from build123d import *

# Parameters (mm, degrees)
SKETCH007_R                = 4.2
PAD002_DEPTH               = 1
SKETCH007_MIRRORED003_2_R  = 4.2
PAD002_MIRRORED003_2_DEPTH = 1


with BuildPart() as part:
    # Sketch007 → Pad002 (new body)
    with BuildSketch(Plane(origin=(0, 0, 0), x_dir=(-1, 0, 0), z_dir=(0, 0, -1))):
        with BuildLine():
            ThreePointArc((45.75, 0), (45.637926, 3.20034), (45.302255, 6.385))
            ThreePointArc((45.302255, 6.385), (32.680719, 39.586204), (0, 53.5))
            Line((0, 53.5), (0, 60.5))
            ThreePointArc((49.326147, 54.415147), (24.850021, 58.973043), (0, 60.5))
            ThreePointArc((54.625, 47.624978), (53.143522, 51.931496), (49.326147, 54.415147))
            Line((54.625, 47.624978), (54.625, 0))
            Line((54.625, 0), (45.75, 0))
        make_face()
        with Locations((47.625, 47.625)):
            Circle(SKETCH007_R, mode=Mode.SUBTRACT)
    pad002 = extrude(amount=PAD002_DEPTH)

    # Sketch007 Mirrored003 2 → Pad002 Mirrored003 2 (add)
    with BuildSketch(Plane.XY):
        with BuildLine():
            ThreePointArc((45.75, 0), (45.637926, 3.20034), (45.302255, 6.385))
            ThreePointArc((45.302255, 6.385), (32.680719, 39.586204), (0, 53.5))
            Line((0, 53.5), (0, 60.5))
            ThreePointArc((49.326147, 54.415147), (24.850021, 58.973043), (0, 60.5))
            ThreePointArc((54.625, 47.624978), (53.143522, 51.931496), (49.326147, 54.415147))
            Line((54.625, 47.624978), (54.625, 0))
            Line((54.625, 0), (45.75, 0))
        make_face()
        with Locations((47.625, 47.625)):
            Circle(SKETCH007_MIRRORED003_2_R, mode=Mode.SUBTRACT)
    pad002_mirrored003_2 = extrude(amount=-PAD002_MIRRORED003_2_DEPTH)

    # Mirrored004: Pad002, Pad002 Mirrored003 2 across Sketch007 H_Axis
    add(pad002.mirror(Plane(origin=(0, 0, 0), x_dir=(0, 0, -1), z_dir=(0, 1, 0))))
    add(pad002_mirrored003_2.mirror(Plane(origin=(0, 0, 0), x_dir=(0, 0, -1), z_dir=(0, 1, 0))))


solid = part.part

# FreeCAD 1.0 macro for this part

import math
import FreeCAD as App
import Part
import Sketcher
from FreeCAD import Vector

doc = App.newDocument("Part")
body = doc.addObject("PartDesign::Body", "Body")

sketch1 = body.newObject("Sketcher::SketchObject", "Sketch")
sketch1.AttachmentSupport = (doc.getObject("XY_Plane"), [""])
sketch1.MapMode = "FlatFace"
sketch1.addGeometry([
    Part.ArcOfCircle(Part.Circle(Vector(0, 0, 0), Vector(0, 0, 1), 45.8), math.radians(171.98), math.radians(180)),
    Part.LineSegment(Vector(-45.8, 0, 0), Vector(-54.6, 0, 0)),
    Part.LineSegment(Vector(-54.6, 0, 0), Vector(-54.6, 47.6, 0)),
    Part.ArcOfCircle(Part.Circle(Vector(-47.6, 47.6, 0), Vector(0, 0, 1), 7), math.radians(104), math.radians(180)),
    Part.ArcOfCircle(Part.Circle(Vector(0, -142.5, 0), Vector(0, 0, 1), 203), math.radians(90), math.radians(104.06)),
    Part.LineSegment(Vector(0, 60.5, 0), Vector(0, 53.5, 0)),
    Part.ArcOfCircle(Part.Circle(Vector(0, 8.2, 0), Vector(0, 0, 1), 45.3), math.radians(90), math.radians(182)),
    Part.Circle(Vector(-47.6, 47.6, 0), Vector(0, 0, 1), 4.2),
], False)
sketch1.addConstraint([
    Sketcher.Constraint("Coincident", 0, 2, 1, 1),
    Sketcher.Constraint("Coincident", 1, 2, 2, 1),
    Sketcher.Constraint("Coincident", 2, 2, 3, 2),
    Sketcher.Constraint("Tangent", 3, 1, 4, 2),
    Sketcher.Constraint("Coincident", 4, 1, 5, 1),
    Sketcher.Constraint("Coincident", 5, 2, 6, 1),
    Sketcher.Constraint("Coincident", 6, 2, 0, 1),
    Sketcher.Constraint("Horizontal", 1),
    Sketcher.Constraint("Vertical", 2),
    Sketcher.Constraint("Vertical", 5),
    Sketcher.Constraint("Coincident", 7, 3, 3, 3),
    Sketcher.Constraint("PointOnObject", 4, 3, -2),
    Sketcher.Constraint("PointOnObject", 6, 3, -2),
    Sketcher.Constraint("PointOnObject", 0, 2, -1),
    Sketcher.Constraint("PointOnObject", 4, 1, -2),
    Sketcher.Constraint("Radius", 3, 7.000001),
    Sketcher.Constraint("Diameter", 7, 8.4),
    Sketcher.Constraint("DistanceY", 5, 2, 5, 1, 7.0),
    Sketcher.Constraint("DistanceY", -1, 1, 4, 1, 60.5),
    Sketcher.Constraint("DistanceX", 1, 2, 1, 1, 8.875),
    Sketcher.Constraint("DistanceX", 0, 2, -1, 1, 45.75),
    Sketcher.Constraint("Radius", 4, 202.970751),
    Sketcher.Constraint("DistanceY", 6, 2, 3, 3, 41.239999),
    Sketcher.Constraint("Radius", 0, 45.750226),
    Sketcher.Constraint("Radius", 6, 45.337127),
    Sketcher.Constraint("DistanceY", 2, 1, 2, 2, 47.624978),
])
pad1 = body.newObject("PartDesign::Pad", "Pad")
pad1.Profile = sketch1
pad1.Length = 1
pad1.Reversed = True

sketch2 = body.newObject("Sketcher::SketchObject", "Sketch001")
sketch2.AttachmentSupport = (doc.getObject("XY_Plane"), [""])
sketch2.MapMode = "FlatFace"
sketch2.addGeometry([
    Part.ArcOfCircle(Part.Circle(Vector(0, 0, 0), Vector(0, 0, 1), 45.8), math.radians(0), math.radians(8.02)),
    Part.LineSegment(Vector(45.8, 0, 0), Vector(54.6, 0, 0)),
    Part.LineSegment(Vector(54.6, 0, 0), Vector(54.6, 47.6, 0)),
    Part.ArcOfCircle(Part.Circle(Vector(47.6, 47.6, 0), Vector(0, 0, 1), 7), math.radians(0), math.radians(76)),
    Part.ArcOfCircle(Part.Circle(Vector(0, -142.5, 0), Vector(0, 0, 1), 203), math.radians(75.94), math.radians(90)),
    Part.LineSegment(Vector(0, 60.5, 0), Vector(0, 53.5, 0)),
    Part.ArcOfCircle(Part.Circle(Vector(0, 8.2, 0), Vector(0, 0, 1), 45.3), math.radians(-2), math.radians(90)),
    Part.Circle(Vector(47.6, 47.6, 0), Vector(0, 0, 1), 4.2),
], False)
sketch2.addConstraint([
    Sketcher.Constraint("Coincident", 0, 1, 1, 1),
    Sketcher.Constraint("Coincident", 1, 2, 2, 1),
    Sketcher.Constraint("Coincident", 2, 2, 3, 1),
    Sketcher.Constraint("Tangent", 3, 2, 4, 1),
    Sketcher.Constraint("Coincident", 4, 2, 5, 1),
    Sketcher.Constraint("Coincident", 5, 2, 6, 2),
    Sketcher.Constraint("Coincident", 6, 1, 0, 2),
    Sketcher.Constraint("Horizontal", 1),
    Sketcher.Constraint("Vertical", 2),
    Sketcher.Constraint("Vertical", 5),
    Sketcher.Constraint("Coincident", 7, 3, 3, 3),
    Sketcher.Constraint("PointOnObject", 4, 3, -2),
    Sketcher.Constraint("PointOnObject", 6, 3, -2),
    Sketcher.Constraint("PointOnObject", 0, 1, -1),
    Sketcher.Constraint("PointOnObject", 4, 2, -2),
    Sketcher.Constraint("Radius", 3, 7.000001),
    Sketcher.Constraint("Diameter", 7, 8.4),
    Sketcher.Constraint("DistanceY", 5, 2, 5, 1, 7.0),
    Sketcher.Constraint("DistanceY", -1, 1, 4, 2, 60.5),
    Sketcher.Constraint("DistanceX", 1, 1, 1, 2, 8.875),
    Sketcher.Constraint("DistanceX", -1, 1, 0, 1, 45.75),
    Sketcher.Constraint("Radius", 4, 202.970751),
    Sketcher.Constraint("DistanceY", 6, 1, 3, 3, 41.239999),
    Sketcher.Constraint("Radius", 0, 45.750226),
    Sketcher.Constraint("Radius", 6, 45.337127),
    Sketcher.Constraint("DistanceY", 2, 1, 2, 2, 47.624978),
])
pad2 = body.newObject("PartDesign::Pad", "Pad001")
pad2.Profile = sketch2
pad2.Length = 1
pad2.Reversed = True
doc.recompute()

mirrored = body.newObject("PartDesign::Mirrored", "Mirrored")
mirrored.Originals = [pad1, pad2]
mirrored.MirrorPlane = (doc.getObject("XZ_Plane"), [""])
body.Tip = mirrored

doc.recompute()
